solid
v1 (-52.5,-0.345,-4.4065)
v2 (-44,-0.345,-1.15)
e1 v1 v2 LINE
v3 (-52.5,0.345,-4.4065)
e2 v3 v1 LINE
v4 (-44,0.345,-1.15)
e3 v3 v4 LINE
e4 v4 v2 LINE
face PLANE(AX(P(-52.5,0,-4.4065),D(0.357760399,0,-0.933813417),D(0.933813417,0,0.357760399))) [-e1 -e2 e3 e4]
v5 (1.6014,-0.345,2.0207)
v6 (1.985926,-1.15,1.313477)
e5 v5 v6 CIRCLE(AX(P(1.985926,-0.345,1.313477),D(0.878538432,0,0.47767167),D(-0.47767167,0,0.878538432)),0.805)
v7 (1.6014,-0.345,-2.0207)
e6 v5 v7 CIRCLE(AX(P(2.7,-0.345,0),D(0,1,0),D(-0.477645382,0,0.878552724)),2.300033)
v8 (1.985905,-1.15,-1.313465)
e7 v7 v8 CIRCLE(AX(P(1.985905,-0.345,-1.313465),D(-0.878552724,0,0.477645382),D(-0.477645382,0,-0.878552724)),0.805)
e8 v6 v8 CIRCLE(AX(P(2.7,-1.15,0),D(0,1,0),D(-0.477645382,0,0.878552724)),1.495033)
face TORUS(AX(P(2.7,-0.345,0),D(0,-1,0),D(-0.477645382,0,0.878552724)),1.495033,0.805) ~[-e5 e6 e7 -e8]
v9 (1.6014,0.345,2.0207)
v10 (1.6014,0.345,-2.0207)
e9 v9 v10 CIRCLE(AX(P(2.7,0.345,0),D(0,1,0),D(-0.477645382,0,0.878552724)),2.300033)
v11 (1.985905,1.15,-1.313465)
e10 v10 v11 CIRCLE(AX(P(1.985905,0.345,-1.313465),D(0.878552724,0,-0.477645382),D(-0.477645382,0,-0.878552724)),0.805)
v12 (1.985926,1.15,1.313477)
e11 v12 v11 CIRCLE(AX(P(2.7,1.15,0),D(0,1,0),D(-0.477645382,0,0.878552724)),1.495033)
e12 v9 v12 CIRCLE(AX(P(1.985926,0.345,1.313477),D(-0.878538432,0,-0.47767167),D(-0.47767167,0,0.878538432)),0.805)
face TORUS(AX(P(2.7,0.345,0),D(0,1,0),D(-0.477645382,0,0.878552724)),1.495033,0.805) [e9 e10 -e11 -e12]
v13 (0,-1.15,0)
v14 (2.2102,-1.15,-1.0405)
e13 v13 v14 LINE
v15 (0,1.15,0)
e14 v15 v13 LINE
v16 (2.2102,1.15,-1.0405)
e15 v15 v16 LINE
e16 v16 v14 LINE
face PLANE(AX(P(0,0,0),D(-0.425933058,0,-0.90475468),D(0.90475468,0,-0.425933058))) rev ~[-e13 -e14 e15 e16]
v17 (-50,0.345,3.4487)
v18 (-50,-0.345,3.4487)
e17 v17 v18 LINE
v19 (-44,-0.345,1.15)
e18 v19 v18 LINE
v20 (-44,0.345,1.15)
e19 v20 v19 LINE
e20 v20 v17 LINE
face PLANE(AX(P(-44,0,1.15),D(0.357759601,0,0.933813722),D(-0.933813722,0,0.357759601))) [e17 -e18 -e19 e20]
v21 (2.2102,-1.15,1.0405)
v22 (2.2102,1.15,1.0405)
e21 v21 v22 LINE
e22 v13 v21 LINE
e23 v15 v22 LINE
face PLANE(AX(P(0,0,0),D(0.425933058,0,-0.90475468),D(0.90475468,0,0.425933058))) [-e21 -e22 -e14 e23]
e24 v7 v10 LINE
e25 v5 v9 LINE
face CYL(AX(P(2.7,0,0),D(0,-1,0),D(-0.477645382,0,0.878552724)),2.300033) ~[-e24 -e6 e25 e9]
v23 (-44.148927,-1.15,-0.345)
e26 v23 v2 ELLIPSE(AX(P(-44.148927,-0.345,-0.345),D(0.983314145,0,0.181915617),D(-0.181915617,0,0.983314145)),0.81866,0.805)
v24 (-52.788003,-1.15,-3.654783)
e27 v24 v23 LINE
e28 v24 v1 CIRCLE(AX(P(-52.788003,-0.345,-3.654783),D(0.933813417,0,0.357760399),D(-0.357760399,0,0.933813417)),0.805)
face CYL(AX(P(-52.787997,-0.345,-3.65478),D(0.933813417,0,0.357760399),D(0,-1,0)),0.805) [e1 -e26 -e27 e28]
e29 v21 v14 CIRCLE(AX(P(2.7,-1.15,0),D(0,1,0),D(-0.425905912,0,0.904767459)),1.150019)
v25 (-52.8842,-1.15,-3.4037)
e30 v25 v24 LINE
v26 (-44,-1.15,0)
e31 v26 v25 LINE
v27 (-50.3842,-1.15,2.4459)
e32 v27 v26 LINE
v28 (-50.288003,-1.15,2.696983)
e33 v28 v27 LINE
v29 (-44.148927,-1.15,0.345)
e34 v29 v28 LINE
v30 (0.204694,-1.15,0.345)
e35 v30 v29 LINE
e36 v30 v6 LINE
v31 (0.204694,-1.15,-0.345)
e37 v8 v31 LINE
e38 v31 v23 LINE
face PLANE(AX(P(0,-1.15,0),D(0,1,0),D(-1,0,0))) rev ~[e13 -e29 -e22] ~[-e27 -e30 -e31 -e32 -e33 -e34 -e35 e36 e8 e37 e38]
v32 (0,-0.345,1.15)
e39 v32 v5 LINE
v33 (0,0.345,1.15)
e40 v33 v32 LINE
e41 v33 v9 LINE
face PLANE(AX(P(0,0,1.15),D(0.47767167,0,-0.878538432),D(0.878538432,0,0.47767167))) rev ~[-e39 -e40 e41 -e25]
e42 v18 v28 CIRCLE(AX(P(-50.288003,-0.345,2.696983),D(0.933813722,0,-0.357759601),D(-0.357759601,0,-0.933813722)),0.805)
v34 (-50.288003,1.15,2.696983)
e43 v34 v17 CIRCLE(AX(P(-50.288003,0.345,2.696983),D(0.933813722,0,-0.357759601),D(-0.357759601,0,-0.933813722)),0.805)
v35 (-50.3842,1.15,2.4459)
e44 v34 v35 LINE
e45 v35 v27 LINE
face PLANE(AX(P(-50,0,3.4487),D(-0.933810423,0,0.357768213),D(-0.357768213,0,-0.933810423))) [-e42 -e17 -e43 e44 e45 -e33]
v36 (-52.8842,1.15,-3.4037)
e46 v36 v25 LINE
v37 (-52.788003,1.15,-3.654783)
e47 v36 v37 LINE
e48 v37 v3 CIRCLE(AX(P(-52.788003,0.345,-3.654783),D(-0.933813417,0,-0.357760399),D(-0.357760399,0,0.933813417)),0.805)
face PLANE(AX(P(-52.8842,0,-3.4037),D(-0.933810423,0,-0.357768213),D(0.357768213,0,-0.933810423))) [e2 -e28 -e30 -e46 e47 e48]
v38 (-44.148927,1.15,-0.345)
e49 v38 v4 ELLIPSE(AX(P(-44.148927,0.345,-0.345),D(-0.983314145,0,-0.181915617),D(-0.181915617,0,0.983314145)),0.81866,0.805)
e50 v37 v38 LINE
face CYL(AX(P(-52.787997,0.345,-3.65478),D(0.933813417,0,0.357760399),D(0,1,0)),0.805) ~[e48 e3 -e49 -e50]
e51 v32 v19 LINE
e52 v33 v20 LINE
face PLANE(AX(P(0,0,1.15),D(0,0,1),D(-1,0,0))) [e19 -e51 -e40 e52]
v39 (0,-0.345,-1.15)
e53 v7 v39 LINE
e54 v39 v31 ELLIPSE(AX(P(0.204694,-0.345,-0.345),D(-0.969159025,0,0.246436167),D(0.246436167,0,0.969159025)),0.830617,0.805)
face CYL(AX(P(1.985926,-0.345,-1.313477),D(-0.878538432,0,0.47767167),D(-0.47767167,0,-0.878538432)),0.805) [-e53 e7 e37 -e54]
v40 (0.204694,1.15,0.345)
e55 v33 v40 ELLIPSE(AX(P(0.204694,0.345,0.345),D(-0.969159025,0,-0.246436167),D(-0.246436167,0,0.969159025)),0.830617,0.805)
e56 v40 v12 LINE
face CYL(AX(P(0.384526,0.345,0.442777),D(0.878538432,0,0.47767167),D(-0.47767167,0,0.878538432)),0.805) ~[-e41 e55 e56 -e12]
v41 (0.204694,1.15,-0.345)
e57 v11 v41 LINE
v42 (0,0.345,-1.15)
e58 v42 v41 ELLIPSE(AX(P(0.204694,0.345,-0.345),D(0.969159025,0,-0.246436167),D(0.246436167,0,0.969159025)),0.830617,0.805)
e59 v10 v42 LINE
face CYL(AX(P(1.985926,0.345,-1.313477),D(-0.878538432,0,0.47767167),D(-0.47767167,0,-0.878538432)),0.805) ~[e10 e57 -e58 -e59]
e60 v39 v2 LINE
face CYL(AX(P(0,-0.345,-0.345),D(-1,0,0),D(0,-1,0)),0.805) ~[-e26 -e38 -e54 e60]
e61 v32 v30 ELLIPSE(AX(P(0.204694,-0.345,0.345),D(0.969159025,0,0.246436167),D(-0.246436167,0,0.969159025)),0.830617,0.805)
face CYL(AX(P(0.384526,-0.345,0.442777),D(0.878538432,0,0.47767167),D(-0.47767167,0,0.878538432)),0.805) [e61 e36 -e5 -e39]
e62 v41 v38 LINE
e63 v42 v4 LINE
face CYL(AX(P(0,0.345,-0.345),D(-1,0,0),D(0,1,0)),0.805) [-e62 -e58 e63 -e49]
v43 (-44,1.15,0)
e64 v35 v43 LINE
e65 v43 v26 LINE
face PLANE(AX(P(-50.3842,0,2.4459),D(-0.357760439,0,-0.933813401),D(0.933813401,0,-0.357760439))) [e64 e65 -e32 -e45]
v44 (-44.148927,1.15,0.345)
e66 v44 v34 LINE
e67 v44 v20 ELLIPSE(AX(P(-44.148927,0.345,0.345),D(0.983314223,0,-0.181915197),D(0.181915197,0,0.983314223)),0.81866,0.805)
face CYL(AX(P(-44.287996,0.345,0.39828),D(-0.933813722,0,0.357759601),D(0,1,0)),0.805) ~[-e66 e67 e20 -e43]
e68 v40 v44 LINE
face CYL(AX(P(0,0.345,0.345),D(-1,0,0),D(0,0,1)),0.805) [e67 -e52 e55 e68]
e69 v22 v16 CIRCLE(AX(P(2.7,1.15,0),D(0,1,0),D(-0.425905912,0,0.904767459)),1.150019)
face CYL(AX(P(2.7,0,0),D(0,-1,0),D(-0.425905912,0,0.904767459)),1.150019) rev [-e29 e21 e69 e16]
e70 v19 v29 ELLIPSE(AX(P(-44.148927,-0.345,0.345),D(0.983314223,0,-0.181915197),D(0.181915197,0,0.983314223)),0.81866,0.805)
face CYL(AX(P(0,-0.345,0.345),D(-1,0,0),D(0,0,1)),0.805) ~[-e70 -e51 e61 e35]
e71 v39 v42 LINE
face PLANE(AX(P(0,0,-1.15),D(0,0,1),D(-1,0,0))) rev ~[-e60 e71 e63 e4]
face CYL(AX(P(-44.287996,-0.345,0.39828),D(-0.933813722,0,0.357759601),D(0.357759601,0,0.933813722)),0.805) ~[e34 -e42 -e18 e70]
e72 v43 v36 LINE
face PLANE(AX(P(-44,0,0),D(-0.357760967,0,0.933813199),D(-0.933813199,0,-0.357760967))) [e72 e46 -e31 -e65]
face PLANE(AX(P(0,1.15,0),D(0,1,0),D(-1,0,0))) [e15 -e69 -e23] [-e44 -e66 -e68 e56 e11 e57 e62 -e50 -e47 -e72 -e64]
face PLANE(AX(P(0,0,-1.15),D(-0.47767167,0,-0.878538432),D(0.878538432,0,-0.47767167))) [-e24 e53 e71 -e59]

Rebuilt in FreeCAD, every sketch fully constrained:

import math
import FreeCAD as App
import Part
import Sketcher
from FreeCAD import Vector
Q = App.Units.Quantity


def edges_at(feature, points):
    """Names of the edges that pass closest to the given points."""
    edges = feature.Shape.Edges
    near = lambda p: min(range(len(edges)), key=lambda i: edges[i].distToShape(Part.Vertex(*p))[0])
    return sorted({f"Edge{near(p) + 1}" for p in points})

doc = App.newDocument("Part")
body = doc.addObject("PartDesign::Body", "Body")

# Sketch on XZ plane
sketch1 = body.newObject("Sketcher::SketchObject", "Sketch")
sketch1.AttachmentSupport = (doc.getObject("XZ_Plane"), [""])
sketch1.MapMode = "FlatFace"
sketch1.addGeometry([
    Part.LineSegment(Vector(0, 1.1, 0), Vector(1.6, 2, 0)),  # 0
    Part.ArcOfCircle(Part.Circle(Vector(2.7, 0, 0), Vector(0, 0, 1), 2.3), math.radians(-119), math.radians(119)),  # 1
    Part.LineSegment(Vector(1.6, -2, 0), Vector(0, -1.1, 0)),  # 2
    Part.LineSegment(Vector(0, -1.1, 0), Vector(-44, -1.1, 0)),  # 3
    Part.LineSegment(Vector(-44, -1.1, 0), Vector(-52.5, -4.4, 0)),  # 4
    Part.LineSegment(Vector(-52.5, -4.4, 0), Vector(-52.9, -3.4, 0)),  # 5
    Part.LineSegment(Vector(-52.9, -3.4, 0), Vector(-44, 0, 0)),  # 6
    Part.LineSegment(Vector(-44, 0, 0), Vector(-50.4, 2.4, 0)),  # 7
    Part.LineSegment(Vector(-50.4, 2.4, 0), Vector(-50, 3.4, 0)),  # 8
    Part.LineSegment(Vector(-50, 3.4, 0), Vector(-44, 1.1, 0)),  # 9
    Part.LineSegment(Vector(-44, 1.1, 0), Vector(0, 1.1, 0)),  # 10
    Part.ArcOfCircle(Part.Circle(Vector(2.7, 0, 0), Vector(0, 0, 1), 1.2), math.radians(-115), math.radians(115)),  # 11
    Part.LineSegment(Vector(2.2, 1, 0), Vector(0, 0, 0)),  # 12
    Part.LineSegment(Vector(0, 0, 0), Vector(2.2, -1, 0)),  # 13
], False)
sketch1.addConstraint([
    Sketcher.Constraint("Tangent", 0, 2, 1, 2),
    Sketcher.Constraint("Tangent", 1, 1, 2, 1),
    Sketcher.Constraint("Coincident", 2, 2, 3, 1),
    Sketcher.Constraint("Coincident", 3, 2, 4, 1),
    Sketcher.Constraint("Coincident", 4, 2, 5, 1),
    Sketcher.Constraint("Coincident", 5, 2, 6, 1),
    Sketcher.Constraint("Coincident", 6, 2, 7, 1),
    Sketcher.Constraint("Coincident", 7, 2, 8, 1),
    Sketcher.Constraint("Coincident", 8, 2, 9, 1),
    Sketcher.Constraint("Coincident", 9, 2, 10, 1),
    Sketcher.Constraint("Coincident", 10, 2, 0, 1),
    Sketcher.Constraint("Tangent", 11, 2, 12, 1),
    Sketcher.Constraint("Coincident", 12, 2, 13, 1),
    Sketcher.Constraint("Tangent", 13, 2, 11, 1),
    Sketcher.Constraint("Horizontal", 3),
    Sketcher.Constraint("Horizontal", 10),
    Sketcher.Constraint("Coincident", 12, 2, -1, 1),
    Sketcher.Constraint("Coincident", 11, 3, 1, 3),
    Sketcher.Constraint("Symmetric", 2, 2, 10, 2, -1, 1),
    Sketcher.Constraint("Symmetric", 0, 2, 1, 1, -1),
    Sketcher.Constraint("PointOnObject", 6, 2, -1),
    Sketcher.Constraint("Perpendicular", 4, 5),
    Sketcher.Constraint("Perpendicular", 5, 6),
    Sketcher.Constraint("Perpendicular", 7, 8),
    Sketcher.Constraint("Perpendicular", 8, 9),
    Sketcher.Constraint("Vertical", 3, 2, 6, 2),
    Sketcher.Constraint("Vertical", 6, 2, 9, 2),
    Sketcher.Constraint("Equal", 5, 8),
    Sketcher.Constraint("Radius", 1, Q("2.3 mm")),
    Sketcher.Constraint("DistanceX", 3, 2, 3, 1, Q("44 mm")),
    Sketcher.Constraint("Radius", 11, Q("1.15 mm")),
    Sketcher.Constraint("DistanceX", 8, 2, -1, 1, Q("50 mm")),
    Sketcher.Constraint("DistanceX", -1, 1, 1, 3, Q("2.7 mm")),
    Sketcher.Constraint("DistanceX", 5, 2, 7, 2, Q("2.5 mm")),
    Sketcher.Constraint("DistanceY", 3, 2, 9, 2, Q("2.3 mm")),
    Sketcher.Constraint("Distance", 6, Q("9.514 mm")),
])
pad1 = body.newObject("PartDesign::Pad", "Pad")
pad1.Profile = sketch1
pad1.Length = 2.3
pad1.Midplane = True
doc.recompute()

fillet = body.newObject("PartDesign::Fillet", "Fillet")
fillet.Base = (pad1, edges_at(pad1, [
    (-47, -1.15, 2.299),
    (-47, 1.15, 2.299),
    (-22, -1.15, 1.15),
    (-22, 1.15, 1.15),
    (5, -1.15, 0),
    (0.801, -1.15, -1.585),
    (0.801, -1.15, 1.585),
    (5, 1.15, 0),
    (0.801, 1.15, 1.585),
    (0.801, 1.15, -1.585),
    (-22, -1.15, -1.15),
    (-48.25, -1.15, -2.778),
    (-22, 1.15, -1.15),
    (-48.25, 1.15, -2.778),
]))
fillet.Radius = 0.805

doc.recompute()
